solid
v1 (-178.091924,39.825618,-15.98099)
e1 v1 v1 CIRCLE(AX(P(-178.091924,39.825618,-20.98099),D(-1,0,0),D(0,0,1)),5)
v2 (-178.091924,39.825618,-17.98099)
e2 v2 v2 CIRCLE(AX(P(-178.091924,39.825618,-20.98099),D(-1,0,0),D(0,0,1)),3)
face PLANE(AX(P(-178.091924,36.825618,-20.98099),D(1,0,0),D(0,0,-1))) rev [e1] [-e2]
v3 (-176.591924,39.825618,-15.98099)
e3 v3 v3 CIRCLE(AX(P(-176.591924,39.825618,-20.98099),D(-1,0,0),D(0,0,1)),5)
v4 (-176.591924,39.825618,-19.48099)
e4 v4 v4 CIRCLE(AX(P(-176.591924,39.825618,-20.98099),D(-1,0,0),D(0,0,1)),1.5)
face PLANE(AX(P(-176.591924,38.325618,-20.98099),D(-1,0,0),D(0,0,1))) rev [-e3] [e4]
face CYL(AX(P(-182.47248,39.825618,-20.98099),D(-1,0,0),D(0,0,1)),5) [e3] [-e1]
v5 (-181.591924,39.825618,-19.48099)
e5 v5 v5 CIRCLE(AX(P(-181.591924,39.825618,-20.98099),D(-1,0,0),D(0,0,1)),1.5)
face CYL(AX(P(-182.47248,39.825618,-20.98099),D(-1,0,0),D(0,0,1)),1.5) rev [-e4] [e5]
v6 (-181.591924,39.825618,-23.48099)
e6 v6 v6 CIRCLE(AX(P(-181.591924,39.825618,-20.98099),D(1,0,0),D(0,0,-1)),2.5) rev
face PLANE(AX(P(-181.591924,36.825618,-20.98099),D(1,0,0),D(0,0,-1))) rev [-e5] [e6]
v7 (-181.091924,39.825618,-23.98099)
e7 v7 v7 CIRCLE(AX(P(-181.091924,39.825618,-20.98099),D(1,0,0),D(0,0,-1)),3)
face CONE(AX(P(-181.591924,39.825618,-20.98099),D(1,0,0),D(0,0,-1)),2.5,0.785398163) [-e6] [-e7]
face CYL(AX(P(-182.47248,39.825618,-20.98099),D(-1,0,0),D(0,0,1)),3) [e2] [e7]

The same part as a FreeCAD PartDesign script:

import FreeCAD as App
import Part
import Sketcher
Q = App.Units.Quantity


def edges_at(feature, points):
    """Names of the edges that pass closest to the given points."""
    edges = feature.Shape.Edges
    near = lambda p: min(range(len(edges)), key=lambda i: edges[i].distToShape(Part.Vertex(*p))[0])
    return sorted({f"Edge{near(p) + 1}" for p in points})

doc = App.newDocument("Part")
body = doc.addObject("PartDesign::Body", "Body")

# Sketch on XY plane
sketch1 = doc.addObject("Sketcher::SketchObject", "Sketch")
body.addObject(sketch1)
sketch1.AttachmentSupport = (doc.XY_Plane, [""])
sketch1.MapMode = "FlatFace"
sketch1.AttachmentOffset = App.Placement(App.Vector(0, 0, -20.98099), App.Rotation())
sketch1.addGeometry([
    Part.LineSegment(App.Vector(-176.6, 38.3, 0), App.Vector(-176.6, 34.8, 0)),  # 0
    Part.LineSegment(App.Vector(-176.6, 34.8, 0), App.Vector(-178.1, 34.8, 0)),  # 1
    Part.LineSegment(App.Vector(-178.1, 34.8, 0), App.Vector(-178.1, 36.8, 0)),  # 2
    Part.LineSegment(App.Vector(-178.1, 36.8, 0), App.Vector(-181.6, 36.8, 0)),  # 3
    Part.LineSegment(App.Vector(-181.6, 36.8, 0), App.Vector(-181.6, 38.3, 0)),  # 4
    Part.LineSegment(App.Vector(-181.6, 38.3, 0), App.Vector(-176.6, 38.3, 0)),  # 5
], False)
sketch1.addGeometry(Part.LineSegment(App.Vector(-181.6, 39.8, 0), App.Vector(-176.6, 39.8, 0)), True)  # axis
sketch1.addConstraint([
    Sketcher.Constraint("Coincident", 0, 2, 1, 1),
    Sketcher.Constraint("Coincident", 1, 2, 2, 1),
    Sketcher.Constraint("Coincident", 2, 2, 3, 1),
    Sketcher.Constraint("Coincident", 3, 2, 4, 1),
    Sketcher.Constraint("Coincident", 4, 2, 5, 1),
    Sketcher.Constraint("Coincident", 5, 2, 0, 1),
    Sketcher.Constraint("Vertical", 0),
    Sketcher.Constraint("Horizontal", 1),
    Sketcher.Constraint("Vertical", 2),
    Sketcher.Constraint("Horizontal", 3),
    Sketcher.Constraint("Vertical", 4),
    Sketcher.Constraint("Horizontal", 5),
    Sketcher.Constraint("Horizontal", 6),
    Sketcher.Constraint("Vertical", 4, 2, 6, 1),
    Sketcher.Constraint("Vertical", 5, 2, 6, 2),
    Sketcher.Constraint("Equal", 3, 0),
    Sketcher.Constraint("Equal", 1, 4),
    Sketcher.Constraint("DistanceX", 5, 1, 5, 2, Q("5 mm")),
    Sketcher.Constraint("DistanceY", 2, 1, 2, 2, Q("2 mm")),
    Sketcher.Constraint("DistanceY", 3, 2, 6, 1, Q("3 mm")),
    Sketcher.Constraint("DistanceY", -1, 1, 0, 2, Q("34.825618 mm")),
    Sketcher.Constraint("DistanceX", 0, 2, -1, 1, Q("176.591924 mm")),
])
revolution = doc.addObject("PartDesign::Revolution", "Revolution")
body.addObject(revolution)
revolution.Profile = sketch1
revolution.ReferenceAxis = (sketch1, ["Axis0"])
revolution.Angle = 360
doc.recompute()

chamfer = doc.addObject("PartDesign::Chamfer", "Chamfer")
body.addObject(chamfer)
chamfer.Base = (revolution, edges_at(revolution, [(-181.592, 39.826, -23.981)]))
chamfer.Size = 0.5

doc.recompute()
